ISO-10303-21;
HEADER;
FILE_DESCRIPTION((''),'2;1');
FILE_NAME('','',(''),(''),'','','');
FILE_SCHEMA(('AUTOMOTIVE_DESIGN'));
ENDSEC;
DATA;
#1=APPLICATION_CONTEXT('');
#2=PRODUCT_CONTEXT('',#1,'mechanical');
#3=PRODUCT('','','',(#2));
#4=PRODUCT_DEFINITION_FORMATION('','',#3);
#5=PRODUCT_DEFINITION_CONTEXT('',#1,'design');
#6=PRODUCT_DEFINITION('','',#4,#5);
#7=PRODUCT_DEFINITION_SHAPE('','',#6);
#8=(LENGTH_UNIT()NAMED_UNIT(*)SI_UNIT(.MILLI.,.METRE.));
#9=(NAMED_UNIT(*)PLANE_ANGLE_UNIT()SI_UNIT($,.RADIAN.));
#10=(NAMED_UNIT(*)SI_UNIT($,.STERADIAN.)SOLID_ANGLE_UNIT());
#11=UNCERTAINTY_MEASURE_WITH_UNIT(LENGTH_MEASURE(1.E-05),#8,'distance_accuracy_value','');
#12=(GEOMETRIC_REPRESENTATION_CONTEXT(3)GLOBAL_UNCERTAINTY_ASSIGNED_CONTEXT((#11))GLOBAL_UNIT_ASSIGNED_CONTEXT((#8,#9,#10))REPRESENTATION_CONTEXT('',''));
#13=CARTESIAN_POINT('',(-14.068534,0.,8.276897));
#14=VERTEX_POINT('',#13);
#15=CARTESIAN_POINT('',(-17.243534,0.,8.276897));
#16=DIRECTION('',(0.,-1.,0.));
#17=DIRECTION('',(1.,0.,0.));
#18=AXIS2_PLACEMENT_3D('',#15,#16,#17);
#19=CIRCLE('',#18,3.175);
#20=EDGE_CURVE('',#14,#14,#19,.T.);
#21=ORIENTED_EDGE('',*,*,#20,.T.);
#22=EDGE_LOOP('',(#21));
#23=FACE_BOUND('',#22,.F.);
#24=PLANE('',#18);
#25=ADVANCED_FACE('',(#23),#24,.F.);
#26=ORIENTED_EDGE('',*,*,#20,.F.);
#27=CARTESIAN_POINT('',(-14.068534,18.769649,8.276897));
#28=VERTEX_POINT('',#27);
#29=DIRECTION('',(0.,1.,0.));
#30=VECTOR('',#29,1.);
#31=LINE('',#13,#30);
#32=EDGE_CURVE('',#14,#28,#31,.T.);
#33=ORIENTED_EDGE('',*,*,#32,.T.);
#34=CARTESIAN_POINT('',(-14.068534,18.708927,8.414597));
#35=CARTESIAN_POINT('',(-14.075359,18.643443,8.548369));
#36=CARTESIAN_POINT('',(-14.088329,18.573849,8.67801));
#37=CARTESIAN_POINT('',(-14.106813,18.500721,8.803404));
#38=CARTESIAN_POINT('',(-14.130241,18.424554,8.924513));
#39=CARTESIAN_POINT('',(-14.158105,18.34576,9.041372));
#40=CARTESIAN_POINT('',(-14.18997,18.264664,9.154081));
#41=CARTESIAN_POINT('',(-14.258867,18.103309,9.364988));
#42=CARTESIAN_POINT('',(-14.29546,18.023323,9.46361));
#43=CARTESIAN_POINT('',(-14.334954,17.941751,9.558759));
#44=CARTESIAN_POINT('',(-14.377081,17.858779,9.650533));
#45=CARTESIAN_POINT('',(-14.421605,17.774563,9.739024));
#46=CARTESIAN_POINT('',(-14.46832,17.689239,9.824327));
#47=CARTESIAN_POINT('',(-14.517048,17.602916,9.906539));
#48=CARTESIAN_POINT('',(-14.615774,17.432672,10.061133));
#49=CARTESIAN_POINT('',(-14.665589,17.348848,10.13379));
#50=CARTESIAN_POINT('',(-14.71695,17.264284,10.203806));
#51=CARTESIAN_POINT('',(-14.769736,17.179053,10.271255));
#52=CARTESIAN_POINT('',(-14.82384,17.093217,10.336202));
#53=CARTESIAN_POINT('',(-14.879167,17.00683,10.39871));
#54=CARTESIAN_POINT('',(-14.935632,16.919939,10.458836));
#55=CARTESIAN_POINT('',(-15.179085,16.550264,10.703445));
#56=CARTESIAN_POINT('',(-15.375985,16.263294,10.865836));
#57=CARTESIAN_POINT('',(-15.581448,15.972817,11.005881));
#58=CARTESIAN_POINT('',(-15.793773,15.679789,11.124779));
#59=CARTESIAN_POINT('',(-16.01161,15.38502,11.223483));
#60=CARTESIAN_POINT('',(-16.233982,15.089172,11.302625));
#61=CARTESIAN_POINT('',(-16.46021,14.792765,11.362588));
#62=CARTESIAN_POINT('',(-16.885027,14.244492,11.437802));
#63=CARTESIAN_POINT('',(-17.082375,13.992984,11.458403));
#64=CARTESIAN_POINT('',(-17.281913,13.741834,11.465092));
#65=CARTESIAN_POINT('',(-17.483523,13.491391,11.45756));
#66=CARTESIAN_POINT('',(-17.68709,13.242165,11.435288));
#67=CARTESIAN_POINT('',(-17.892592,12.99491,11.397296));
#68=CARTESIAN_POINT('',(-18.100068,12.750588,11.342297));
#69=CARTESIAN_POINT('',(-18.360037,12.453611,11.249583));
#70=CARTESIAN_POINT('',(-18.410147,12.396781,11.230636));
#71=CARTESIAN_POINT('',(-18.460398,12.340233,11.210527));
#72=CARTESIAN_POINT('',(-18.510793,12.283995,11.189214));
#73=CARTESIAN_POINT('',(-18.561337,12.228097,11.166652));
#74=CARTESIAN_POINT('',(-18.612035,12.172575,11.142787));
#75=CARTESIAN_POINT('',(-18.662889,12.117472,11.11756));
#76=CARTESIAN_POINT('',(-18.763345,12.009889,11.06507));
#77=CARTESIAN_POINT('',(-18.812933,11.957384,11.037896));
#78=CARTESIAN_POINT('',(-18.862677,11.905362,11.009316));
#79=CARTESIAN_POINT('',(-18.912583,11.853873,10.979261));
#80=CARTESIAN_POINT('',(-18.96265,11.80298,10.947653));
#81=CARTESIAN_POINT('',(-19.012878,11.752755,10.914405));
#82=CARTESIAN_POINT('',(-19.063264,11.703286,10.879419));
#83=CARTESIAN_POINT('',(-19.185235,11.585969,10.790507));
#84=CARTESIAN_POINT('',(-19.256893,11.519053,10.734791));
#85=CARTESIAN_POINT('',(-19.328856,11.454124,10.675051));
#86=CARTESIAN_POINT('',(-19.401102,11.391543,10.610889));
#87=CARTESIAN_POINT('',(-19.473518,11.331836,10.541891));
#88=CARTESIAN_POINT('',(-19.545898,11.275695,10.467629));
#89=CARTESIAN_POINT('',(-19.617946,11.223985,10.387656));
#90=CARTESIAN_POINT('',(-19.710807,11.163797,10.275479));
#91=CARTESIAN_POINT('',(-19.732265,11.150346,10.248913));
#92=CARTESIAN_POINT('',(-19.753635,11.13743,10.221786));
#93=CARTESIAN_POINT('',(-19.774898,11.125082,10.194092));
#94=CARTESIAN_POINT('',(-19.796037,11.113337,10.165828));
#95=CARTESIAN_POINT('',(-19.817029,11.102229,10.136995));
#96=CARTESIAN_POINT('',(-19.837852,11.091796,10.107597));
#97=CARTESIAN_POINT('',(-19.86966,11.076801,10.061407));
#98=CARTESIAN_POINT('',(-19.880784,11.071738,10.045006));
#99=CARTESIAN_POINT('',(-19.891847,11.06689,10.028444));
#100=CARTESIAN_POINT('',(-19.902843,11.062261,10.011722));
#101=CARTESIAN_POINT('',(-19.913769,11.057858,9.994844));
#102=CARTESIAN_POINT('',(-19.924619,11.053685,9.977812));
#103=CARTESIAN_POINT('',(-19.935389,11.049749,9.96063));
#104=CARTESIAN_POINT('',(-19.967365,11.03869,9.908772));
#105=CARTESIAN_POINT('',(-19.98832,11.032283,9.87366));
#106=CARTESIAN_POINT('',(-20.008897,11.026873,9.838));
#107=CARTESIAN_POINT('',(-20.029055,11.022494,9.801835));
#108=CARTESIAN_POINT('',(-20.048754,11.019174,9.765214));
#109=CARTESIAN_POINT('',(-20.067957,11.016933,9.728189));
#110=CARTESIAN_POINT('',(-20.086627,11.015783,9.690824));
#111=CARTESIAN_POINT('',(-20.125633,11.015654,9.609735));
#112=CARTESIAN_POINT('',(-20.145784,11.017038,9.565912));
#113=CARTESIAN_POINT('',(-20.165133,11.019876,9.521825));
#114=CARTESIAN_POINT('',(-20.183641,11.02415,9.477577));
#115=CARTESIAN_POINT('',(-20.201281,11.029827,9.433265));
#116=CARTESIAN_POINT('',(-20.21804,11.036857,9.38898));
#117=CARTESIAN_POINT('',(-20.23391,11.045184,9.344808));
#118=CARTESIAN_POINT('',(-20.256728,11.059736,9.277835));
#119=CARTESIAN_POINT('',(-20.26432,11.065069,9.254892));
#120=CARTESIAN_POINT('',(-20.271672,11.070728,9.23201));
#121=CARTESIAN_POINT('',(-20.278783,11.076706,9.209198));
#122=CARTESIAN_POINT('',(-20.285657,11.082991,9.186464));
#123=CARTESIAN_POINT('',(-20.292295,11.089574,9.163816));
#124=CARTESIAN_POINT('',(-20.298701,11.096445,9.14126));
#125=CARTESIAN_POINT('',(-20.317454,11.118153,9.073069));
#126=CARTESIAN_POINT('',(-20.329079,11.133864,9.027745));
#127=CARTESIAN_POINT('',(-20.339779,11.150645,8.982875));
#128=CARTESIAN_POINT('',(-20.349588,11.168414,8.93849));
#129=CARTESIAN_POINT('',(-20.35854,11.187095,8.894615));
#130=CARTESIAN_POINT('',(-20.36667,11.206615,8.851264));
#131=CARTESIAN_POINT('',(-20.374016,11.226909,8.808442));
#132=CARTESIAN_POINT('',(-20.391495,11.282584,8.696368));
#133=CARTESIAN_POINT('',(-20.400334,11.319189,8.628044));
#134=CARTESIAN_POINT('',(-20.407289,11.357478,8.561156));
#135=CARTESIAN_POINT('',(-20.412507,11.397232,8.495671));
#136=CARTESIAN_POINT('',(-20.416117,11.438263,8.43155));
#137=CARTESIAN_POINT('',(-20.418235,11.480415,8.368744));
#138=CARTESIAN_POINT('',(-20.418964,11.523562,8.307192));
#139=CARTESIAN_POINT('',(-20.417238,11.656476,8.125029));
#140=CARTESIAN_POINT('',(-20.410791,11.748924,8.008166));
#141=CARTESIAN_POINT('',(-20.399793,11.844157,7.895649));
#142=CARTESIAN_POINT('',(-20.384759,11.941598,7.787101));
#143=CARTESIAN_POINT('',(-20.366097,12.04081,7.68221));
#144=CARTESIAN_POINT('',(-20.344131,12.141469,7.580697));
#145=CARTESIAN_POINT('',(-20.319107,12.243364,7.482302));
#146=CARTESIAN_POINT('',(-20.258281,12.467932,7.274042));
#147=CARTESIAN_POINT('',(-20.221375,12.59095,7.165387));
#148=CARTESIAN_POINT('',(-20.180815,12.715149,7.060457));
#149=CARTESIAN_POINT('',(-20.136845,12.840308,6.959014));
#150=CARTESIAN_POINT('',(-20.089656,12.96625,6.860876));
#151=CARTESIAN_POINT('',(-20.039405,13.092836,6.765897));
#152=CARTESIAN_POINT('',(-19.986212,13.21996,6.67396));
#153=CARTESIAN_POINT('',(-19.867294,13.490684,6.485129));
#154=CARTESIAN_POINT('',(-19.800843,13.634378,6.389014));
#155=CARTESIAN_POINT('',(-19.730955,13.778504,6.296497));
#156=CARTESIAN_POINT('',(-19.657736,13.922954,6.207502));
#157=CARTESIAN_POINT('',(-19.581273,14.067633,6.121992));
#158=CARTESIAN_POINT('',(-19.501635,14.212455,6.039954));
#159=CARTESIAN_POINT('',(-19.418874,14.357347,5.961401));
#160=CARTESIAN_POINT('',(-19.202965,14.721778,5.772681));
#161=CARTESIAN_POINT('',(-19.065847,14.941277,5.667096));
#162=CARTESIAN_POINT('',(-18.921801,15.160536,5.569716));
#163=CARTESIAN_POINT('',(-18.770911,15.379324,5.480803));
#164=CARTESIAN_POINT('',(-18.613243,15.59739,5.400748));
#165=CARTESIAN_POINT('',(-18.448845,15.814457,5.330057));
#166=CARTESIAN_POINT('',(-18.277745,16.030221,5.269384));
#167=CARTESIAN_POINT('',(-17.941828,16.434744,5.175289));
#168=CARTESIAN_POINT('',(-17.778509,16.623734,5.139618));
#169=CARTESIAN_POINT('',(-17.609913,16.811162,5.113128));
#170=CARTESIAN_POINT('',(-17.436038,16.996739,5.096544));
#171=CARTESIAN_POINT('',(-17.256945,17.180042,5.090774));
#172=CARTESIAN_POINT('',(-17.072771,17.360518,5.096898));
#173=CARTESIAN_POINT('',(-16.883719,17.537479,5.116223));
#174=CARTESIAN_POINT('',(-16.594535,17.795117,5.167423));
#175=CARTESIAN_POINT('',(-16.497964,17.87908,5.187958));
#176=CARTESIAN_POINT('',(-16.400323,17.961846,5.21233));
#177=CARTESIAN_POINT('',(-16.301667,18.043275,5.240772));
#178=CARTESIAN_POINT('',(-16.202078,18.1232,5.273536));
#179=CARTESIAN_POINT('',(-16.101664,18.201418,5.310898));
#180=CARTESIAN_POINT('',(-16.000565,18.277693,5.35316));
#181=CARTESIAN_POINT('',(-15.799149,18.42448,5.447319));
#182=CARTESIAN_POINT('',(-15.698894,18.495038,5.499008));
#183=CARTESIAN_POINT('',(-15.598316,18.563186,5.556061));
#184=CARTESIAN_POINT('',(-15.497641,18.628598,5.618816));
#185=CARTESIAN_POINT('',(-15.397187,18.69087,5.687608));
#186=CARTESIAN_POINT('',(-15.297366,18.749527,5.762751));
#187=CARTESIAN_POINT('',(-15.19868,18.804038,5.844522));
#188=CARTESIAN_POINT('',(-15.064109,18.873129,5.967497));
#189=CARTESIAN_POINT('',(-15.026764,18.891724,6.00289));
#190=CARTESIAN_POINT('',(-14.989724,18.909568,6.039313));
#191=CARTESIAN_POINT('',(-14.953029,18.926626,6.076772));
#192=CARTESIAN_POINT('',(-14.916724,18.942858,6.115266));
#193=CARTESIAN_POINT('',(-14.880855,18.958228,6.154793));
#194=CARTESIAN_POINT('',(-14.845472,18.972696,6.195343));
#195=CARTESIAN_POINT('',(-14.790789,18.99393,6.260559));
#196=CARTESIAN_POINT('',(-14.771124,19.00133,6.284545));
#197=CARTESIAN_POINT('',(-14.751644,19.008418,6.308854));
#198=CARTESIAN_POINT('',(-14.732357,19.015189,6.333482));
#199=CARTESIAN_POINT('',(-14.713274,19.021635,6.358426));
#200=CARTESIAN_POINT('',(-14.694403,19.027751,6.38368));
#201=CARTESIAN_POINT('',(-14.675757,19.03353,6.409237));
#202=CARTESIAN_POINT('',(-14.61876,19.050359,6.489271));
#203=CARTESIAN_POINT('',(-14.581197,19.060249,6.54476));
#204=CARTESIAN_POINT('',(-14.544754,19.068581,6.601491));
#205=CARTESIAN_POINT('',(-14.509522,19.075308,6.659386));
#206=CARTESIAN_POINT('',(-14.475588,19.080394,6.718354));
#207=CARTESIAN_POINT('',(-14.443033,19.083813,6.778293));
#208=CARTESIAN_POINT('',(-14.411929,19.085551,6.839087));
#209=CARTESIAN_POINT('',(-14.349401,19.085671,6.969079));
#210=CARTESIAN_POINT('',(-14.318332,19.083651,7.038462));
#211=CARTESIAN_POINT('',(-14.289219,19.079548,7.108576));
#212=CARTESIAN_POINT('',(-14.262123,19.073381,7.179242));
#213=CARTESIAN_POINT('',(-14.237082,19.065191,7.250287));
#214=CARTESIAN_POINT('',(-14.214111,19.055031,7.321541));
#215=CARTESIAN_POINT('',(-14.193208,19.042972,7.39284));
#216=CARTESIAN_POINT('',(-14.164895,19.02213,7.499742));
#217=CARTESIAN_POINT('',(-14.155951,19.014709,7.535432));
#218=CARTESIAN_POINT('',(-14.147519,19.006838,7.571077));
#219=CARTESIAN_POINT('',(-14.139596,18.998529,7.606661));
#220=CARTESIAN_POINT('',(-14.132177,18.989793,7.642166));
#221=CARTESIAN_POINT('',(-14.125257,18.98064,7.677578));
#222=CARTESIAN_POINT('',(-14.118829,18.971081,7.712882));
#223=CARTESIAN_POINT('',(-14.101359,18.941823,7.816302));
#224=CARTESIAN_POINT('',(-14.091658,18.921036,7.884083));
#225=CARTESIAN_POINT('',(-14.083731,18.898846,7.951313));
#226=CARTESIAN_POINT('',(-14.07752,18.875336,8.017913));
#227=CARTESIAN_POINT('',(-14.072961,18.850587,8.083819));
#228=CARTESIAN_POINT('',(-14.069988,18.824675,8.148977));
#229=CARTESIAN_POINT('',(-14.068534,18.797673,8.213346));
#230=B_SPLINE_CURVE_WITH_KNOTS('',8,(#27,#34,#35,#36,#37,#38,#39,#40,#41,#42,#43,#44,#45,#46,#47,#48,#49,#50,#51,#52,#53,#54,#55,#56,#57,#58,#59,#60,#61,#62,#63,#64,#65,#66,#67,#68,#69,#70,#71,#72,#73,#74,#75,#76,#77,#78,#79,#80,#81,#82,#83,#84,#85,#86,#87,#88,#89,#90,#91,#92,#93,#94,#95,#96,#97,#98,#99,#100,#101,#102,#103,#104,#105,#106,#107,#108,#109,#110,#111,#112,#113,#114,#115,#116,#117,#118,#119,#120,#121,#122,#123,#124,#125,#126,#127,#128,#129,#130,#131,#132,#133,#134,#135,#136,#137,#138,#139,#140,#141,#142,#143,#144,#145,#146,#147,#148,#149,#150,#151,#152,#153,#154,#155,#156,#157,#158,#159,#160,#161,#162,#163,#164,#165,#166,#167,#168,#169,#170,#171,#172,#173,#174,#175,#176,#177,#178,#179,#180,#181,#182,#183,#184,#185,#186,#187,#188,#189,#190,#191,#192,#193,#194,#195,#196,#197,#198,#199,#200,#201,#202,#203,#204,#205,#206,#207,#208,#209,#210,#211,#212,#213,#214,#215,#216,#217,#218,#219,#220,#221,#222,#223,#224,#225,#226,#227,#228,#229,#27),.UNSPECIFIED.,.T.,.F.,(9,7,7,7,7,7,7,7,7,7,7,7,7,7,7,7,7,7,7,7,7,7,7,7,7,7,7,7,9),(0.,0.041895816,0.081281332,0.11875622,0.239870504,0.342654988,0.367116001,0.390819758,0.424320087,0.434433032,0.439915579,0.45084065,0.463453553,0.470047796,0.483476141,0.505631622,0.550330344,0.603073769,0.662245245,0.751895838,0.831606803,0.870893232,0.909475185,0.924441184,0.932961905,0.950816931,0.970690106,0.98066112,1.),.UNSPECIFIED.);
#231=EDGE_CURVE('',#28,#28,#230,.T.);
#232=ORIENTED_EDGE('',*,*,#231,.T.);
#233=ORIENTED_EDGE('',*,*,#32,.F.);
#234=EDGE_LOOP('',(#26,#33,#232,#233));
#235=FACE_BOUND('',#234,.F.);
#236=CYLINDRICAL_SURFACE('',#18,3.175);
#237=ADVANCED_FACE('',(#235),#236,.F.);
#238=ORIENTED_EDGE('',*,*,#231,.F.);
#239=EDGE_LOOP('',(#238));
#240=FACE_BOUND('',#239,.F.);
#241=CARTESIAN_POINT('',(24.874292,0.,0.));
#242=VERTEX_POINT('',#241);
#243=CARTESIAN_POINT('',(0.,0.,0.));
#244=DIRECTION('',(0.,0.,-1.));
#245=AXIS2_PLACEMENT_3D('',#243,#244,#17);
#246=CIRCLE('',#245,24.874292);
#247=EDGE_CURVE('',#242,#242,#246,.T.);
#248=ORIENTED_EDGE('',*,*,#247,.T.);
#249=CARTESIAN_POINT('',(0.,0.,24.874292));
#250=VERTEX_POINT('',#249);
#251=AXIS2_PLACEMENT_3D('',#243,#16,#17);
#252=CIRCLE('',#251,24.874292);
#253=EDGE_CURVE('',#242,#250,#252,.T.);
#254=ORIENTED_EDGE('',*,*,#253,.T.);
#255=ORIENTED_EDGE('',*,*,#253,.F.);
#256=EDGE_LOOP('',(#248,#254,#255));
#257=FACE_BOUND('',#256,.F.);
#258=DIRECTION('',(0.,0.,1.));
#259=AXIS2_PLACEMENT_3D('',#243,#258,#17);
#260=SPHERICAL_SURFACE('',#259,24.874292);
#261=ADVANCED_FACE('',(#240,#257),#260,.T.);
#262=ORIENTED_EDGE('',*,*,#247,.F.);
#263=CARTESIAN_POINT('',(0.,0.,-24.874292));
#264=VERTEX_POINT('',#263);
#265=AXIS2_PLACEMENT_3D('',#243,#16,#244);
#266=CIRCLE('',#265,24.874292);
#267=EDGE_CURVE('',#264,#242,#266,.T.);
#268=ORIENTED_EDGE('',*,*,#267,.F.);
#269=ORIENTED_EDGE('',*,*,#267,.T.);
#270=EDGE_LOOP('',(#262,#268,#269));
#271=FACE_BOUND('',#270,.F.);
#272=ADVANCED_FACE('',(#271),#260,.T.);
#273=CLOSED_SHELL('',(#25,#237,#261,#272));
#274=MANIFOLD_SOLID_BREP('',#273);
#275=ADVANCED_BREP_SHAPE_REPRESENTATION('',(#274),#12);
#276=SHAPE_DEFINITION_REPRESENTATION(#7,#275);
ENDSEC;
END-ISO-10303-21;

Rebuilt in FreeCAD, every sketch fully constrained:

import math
import FreeCAD as App
import Part
import Sketcher
Q = App.Units.Quantity

doc = App.newDocument("Part")
body = doc.addObject("PartDesign::Body", "Body")

# Sketch on XZ plane
sketch1 = body.newObject("Sketcher::SketchObject", "Sketch")
sketch1.AttachmentSupport = (doc.getObject("XZ_Plane"), [""])
sketch1.MapMode = "FlatFace"
sketch1.addGeometry(Part.ArcOfCircle(Part.Circle(App.Vector(0, 0, 0), App.Vector(0, 0, 1), 25), math.radians(-90), math.radians(0)), False)
sketch1.addGeometry(Part.ArcOfCircle(Part.Circle(App.Vector(0, 0, 0), App.Vector(0, 0, 1), 25), math.radians(0), math.radians(90)), False)
sketch1.addGeometry(Part.LineSegment(App.Vector(0, 25, 0), App.Vector(0, -25, 0)), False)
sketch1.addConstraint(Sketcher.Constraint("Tangent", 0, 2, 1, 1))
sketch1.addConstraint(Sketcher.Constraint("Coincident", 1, 2, 2, 1))
sketch1.addConstraint(Sketcher.Constraint("Coincident", 2, 2, 0, 1))
sketch1.addConstraint(Sketcher.Constraint("Vertical", 2))
sketch1.addConstraint(Sketcher.Constraint("Coincident", 0, 3, -1, 1))
sketch1.addConstraint(Sketcher.Constraint("Equal", 0, 1))
sketch1.addConstraint(Sketcher.Constraint("PointOnObject", 0, 2, -1))
sketch1.addConstraint(Sketcher.Constraint("PointOnObject", 1, 2, -2))
sketch1.addConstraint(Sketcher.Constraint("Radius", 0, 24.874292))
revolution = body.newObject("PartDesign::Revolution", "Revolution")
revolution.Profile = sketch1
revolution.ReferenceAxis = (sketch1, ["V_Axis"])
revolution.Angle = 360

# Sketch on XZ plane
sketch2 = body.newObject("Sketcher::SketchObject", "Sketch001")
sketch2.AttachmentSupport = (doc.getObject("XZ_Plane"), [""])
sketch2.MapMode = "FlatFace"
sketch2.addGeometry(Part.Circle(App.Vector(-17.2, 8.3, 0), App.Vector(0, 0, 1), 3.2), False)
sketch2.addConstraint(Sketcher.Constraint("Diameter", 0, Q("0.25 in")))
sketch2.addConstraint(Sketcher.Constraint("DistanceX", 0, 3, -1, 1, 17.243534))
sketch2.addConstraint(Sketcher.Constraint("DistanceY", -1, 1, 0, 3, 8.276897))
pocket1 = body.newObject("PartDesign::Pocket", "Pocket")
pocket1.Profile = sketch2
pocket1.Type = "ThroughAll"

doc.recompute()
